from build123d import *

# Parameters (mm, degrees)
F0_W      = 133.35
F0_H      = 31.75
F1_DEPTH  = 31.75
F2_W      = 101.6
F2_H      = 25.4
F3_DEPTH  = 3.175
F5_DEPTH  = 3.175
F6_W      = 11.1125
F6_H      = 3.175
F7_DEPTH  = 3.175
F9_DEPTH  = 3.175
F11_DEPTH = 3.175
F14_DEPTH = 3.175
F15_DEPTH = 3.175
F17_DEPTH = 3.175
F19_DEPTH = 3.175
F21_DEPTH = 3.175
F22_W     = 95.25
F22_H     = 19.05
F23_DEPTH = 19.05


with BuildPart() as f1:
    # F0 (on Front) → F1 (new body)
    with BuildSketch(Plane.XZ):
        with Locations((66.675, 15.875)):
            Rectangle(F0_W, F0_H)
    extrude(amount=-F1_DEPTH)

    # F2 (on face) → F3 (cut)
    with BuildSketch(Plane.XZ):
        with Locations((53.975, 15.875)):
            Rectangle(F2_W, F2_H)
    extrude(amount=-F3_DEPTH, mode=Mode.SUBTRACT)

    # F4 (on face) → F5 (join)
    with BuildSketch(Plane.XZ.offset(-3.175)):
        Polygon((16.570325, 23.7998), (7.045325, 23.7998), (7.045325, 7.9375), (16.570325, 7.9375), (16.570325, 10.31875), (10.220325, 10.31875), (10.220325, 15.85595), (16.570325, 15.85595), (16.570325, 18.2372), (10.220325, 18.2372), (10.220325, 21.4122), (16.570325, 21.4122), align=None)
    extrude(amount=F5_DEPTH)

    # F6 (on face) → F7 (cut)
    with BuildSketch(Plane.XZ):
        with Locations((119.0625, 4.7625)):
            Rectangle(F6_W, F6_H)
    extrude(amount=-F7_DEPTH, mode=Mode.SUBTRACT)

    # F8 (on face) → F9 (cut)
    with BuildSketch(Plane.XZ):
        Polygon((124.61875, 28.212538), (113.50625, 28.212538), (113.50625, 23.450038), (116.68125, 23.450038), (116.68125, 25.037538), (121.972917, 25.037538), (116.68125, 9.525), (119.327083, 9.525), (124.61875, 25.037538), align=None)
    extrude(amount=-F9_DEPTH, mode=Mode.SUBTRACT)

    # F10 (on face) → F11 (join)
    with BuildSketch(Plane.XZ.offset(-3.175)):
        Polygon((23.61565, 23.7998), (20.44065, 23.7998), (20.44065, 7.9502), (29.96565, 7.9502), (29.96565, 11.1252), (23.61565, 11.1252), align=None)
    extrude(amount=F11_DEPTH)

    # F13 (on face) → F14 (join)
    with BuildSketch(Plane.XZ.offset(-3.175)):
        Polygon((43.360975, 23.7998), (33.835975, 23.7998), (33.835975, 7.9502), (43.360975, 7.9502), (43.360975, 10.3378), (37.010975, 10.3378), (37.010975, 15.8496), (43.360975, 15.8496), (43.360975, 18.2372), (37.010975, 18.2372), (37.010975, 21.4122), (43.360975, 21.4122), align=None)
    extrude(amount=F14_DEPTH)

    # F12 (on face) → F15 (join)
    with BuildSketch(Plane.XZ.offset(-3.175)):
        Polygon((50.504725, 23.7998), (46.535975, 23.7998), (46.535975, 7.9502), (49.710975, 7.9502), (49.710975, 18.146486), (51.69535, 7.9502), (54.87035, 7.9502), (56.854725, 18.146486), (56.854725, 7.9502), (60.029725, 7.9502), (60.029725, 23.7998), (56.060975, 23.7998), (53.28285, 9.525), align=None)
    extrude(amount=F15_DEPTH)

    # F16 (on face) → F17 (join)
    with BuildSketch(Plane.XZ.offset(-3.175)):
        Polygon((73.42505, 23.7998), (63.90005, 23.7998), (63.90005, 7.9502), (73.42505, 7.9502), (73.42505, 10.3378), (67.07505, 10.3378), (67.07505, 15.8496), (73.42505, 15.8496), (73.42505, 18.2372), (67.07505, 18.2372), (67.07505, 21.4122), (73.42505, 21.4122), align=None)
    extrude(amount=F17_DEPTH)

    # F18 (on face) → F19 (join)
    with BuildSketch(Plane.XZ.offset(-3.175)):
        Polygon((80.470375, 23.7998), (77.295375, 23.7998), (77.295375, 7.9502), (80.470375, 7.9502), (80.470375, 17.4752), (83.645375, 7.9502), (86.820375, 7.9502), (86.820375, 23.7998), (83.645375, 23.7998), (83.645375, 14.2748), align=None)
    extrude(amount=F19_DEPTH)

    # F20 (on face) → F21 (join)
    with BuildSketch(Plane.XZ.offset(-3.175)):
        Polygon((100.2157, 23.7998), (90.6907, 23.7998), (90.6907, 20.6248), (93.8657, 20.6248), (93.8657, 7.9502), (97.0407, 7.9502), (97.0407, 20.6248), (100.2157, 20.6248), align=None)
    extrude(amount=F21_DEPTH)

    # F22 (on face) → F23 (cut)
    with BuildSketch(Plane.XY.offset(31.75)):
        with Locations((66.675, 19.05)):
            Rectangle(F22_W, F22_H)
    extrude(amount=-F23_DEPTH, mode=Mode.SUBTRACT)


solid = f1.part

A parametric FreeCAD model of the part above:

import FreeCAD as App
import Part
import Sketcher
from FreeCAD import Vector
Q = App.Units.Quantity


def add_polygon(sketch, points):
    """Adds a closed chain of lines whose ends are joined by coincident constraints."""
    first, n = sketch.GeometryCount, len(points)
    for a, b in zip(points, points[1:] + points[:1]):
        sketch.addGeometry(Part.LineSegment(App.Vector(*a, 0), App.Vector(*b, 0)), False)
    for i in range(n):
        sketch.addConstraint(Sketcher.Constraint("Coincident", first + i, 2, first + (i + 1) % n, 1))

doc = App.newDocument("Part")
body = doc.addObject("PartDesign::Body", "Body")

sketch1 = body.newObject("Sketcher::SketchObject", "Sketch")
sketch1.AttachmentSupport = (doc.getObject("XZ_Plane"), [""])
sketch1.MapMode = "FlatFace"
add_polygon(sketch1, [(0, 31.75), (0, 0), (133.35, 0), (133.35, 31.75)])
sketch1.addConstraint([
    Sketcher.Constraint("Vertical", 0),
    Sketcher.Constraint("Horizontal", 1),
    Sketcher.Constraint("Vertical", 2),
    Sketcher.Constraint("Horizontal", 3),
    Sketcher.Constraint("Coincident", 0, 2, -1, 1),
    Sketcher.Constraint("DistanceX", 1, 1, 1, 2, Q("5.25 in")),
    Sketcher.Constraint("DistanceY", 0, 2, 0, 1, Q("1.25 in")),
])
pad1 = body.newObject("PartDesign::Pad", "Pad")
pad1.Profile = sketch1
pad1.Length = Q("1.25 in")
pad1.Reversed = True

sketch2 = body.newObject("Sketcher::SketchObject", "Sketch001")
sketch2.AttachmentSupport = (doc.getObject("XZ_Plane"), [""])
sketch2.MapMode = "FlatFace"
add_polygon(sketch2, [(3.175, 28.575), (3.175, 3.175), (104.775, 3.175), (104.775, 28.575)])
sketch2.addConstraint([
    Sketcher.Constraint("Vertical", 0),
    Sketcher.Constraint("Horizontal", 1),
    Sketcher.Constraint("Vertical", 2),
    Sketcher.Constraint("Horizontal", 3),
    Sketcher.Constraint("DistanceX", 1, 1, 1, 2, Q("4 in")),
    Sketcher.Constraint("DistanceY", 0, 2, 0, 1, Q("1 in")),
    Sketcher.Constraint("DistanceX", -1, 1, 0, 2, Q("0.125 in")),
    Sketcher.Constraint("DistanceY", -1, 1, 0, 2, Q("0.125 in")),
])
pocket1 = body.newObject("PartDesign::Pocket", "Pocket")
pocket1.Profile = sketch2
pocket1.Length = Q("0.125 in")

sketch3 = body.newObject("Sketcher::SketchObject", "Sketch002")
sketch3.AttachmentSupport = (doc.getObject("XZ_Plane"), [""])
sketch3.MapMode = "FlatFace"
sketch3.AttachmentOffset = App.Placement(Vector(0, 0, -0.125 * 25.4), App.Rotation())
add_polygon(sketch3, [(16.570325, 23.7998), (7.045325, 23.7998), (7.045325, 7.9375), (16.570325, 7.9375), (16.570325, 10.31875), (10.220325, 10.31875), (10.220325, 15.85595), (16.570325, 15.85595), (16.570325, 18.2372), (10.220325, 18.2372), (10.220325, 21.4122), (16.570325, 21.4122)])
sketch3.addConstraint([
    Sketcher.Constraint("Horizontal", 0),
    Sketcher.Constraint("Vertical", 1),
    Sketcher.Constraint("Horizontal", 2),
    Sketcher.Constraint("Vertical", 3),
    Sketcher.Constraint("Horizontal", 4),
    Sketcher.Constraint("Vertical", 5),
    Sketcher.Constraint("Horizontal", 6),
    Sketcher.Constraint("Vertical", 7),
    Sketcher.Constraint("Horizontal", 8),
    Sketcher.Constraint("Vertical", 9),
    Sketcher.Constraint("Horizontal", 10),
    Sketcher.Constraint("Vertical", 11),
    Sketcher.Constraint("Vertical", 3, 2, 6, 2),
    Sketcher.Constraint("Vertical", 5, 2, 8, 2),
    Sketcher.Constraint("Vertical", 7, 2, 10, 2),
    Sketcher.Constraint("Equal", 3, 7),
    Sketcher.Constraint("DistanceX", 4, 2, 4, 1, Q("0.25 in")),
    Sketcher.Constraint("DistanceX", 0, 2, 0, 1, Q("0.375 in")),
    Sketcher.Constraint("DistanceY", 3, 1, 3, 2, Q("0.09375 in")),
    Sketcher.Constraint("DistanceY", 5, 1, 5, 2, Q("0.218 in")),
    Sketcher.Constraint("DistanceY", 9, 1, 9, 2, Q("0.125 in")),
    Sketcher.Constraint("DistanceY", 11, 1, 11, 2, Q("0.094 in")),
    Sketcher.Constraint("DistanceY", -1, 1, 0, 2, Q("0.937 in")),
    Sketcher.Constraint("DistanceX", -1, 1, 0, 2, Q("7.045325 mm")),
])
pad2 = body.newObject("PartDesign::Pad", "Pad001")
pad2.Profile = sketch3
pad2.Length = Q("0.125 in")

sketch4 = body.newObject("Sketcher::SketchObject", "Sketch003")
sketch4.AttachmentSupport = (doc.getObject("XZ_Plane"), [""])
sketch4.MapMode = "FlatFace"
add_polygon(sketch4, [(113.50625, 6.35), (113.50625, 3.175), (124.61875, 3.175), (124.61875, 6.35)])
sketch4.addConstraint([
    Sketcher.Constraint("Vertical", 0),
    Sketcher.Constraint("Horizontal", 1),
    Sketcher.Constraint("Vertical", 2),
    Sketcher.Constraint("Horizontal", 3),
    Sketcher.Constraint("DistanceX", 1, 1, 1, 2, Q("0.4375 in")),
    Sketcher.Constraint("DistanceY", 0, 2, 0, 1, Q("0.125 in")),
    Sketcher.Constraint("DistanceY", -1, 1, 2, 2, Q("0.25 in")),
    Sketcher.Constraint("DistanceX", -1, 1, 0, 2, Q("4.46875 in")),
])
pocket2 = body.newObject("PartDesign::Pocket", "Pocket001")
pocket2.Profile = sketch4
pocket2.Length = Q("0.125 in")

sketch5 = body.newObject("Sketcher::SketchObject", "Sketch004")
sketch5.AttachmentSupport = (doc.getObject("XZ_Plane"), [""])
sketch5.MapMode = "FlatFace"
add_polygon(sketch5, [(124.61875, 28.212538), (113.50625, 28.212538), (113.50625, 23.450038), (116.68125, 23.450038), (116.68125, 25.037538), (121.972917, 25.037538), (116.68125, 9.525), (119.327083, 9.525), (124.61875, 25.037538)])
sketch5.addConstraint([
    Sketcher.Constraint("Horizontal", 0),
    Sketcher.Constraint("Vertical", 1),
    Sketcher.Constraint("Horizontal", 2),
    Sketcher.Constraint("Vertical", 3),
    Sketcher.Constraint("Horizontal", 4),
    Sketcher.Constraint("Horizontal", 6),
    Sketcher.Constraint("Vertical", 8),
    Sketcher.Constraint("Parallel", 5, 7),
    Sketcher.Constraint("Horizontal", 4, 2, 7, 2),
    Sketcher.Constraint("Vertical", 3, 2, 5, 2),
    Sketcher.Constraint("Equal", 2, 8),
    Sketcher.Constraint("DistanceX", 0, 2, 0, 1, Q("0.4375 in")),
    Sketcher.Constraint("DistanceX", 2, 1, 2, 2, Q("0.125 in")),
    Sketcher.Constraint("DistanceY", 1, 2, 1, 1, Q("0.1875 in")),
    Sketcher.Constraint("DistanceX", -1, 1, 0, 2, Q("4.46875 in")),
    Sketcher.Constraint("DistanceY", -1, 1, 5, 2, Q("0.375 in")),
    Sketcher.Constraint("Distance", 5, Q("16.390259 mm")),
    Sketcher.Constraint("DistanceX", 4, 1, 4, 2, Q("5.291667 mm")),
])
pocket3 = body.newObject("PartDesign::Pocket", "Pocket002")
pocket3.Profile = sketch5
pocket3.Length = Q("0.125 in")

sketch6 = body.newObject("Sketcher::SketchObject", "Sketch005")
sketch6.AttachmentSupport = (doc.getObject("XZ_Plane"), [""])
sketch6.MapMode = "FlatFace"
sketch6.AttachmentOffset = App.Placement(Vector(0, 0, -0.125 * 25.4), App.Rotation())
add_polygon(sketch6, [(23.61565, 23.7998), (20.44065, 23.7998), (20.44065, 7.9502), (29.96565, 7.9502), (29.96565, 11.1252), (23.61565, 11.1252)])
sketch6.addConstraint([
    Sketcher.Constraint("Horizontal", 0),
    Sketcher.Constraint("Vertical", 1),
    Sketcher.Constraint("Horizontal", 2),
    Sketcher.Constraint("Vertical", 3),
    Sketcher.Constraint("Horizontal", 4),
    Sketcher.Constraint("Vertical", 5),
    Sketcher.Constraint("Equal", 0, 3),
    Sketcher.Constraint("DistanceX", 4, 2, 4, 1, Q("0.25 in")),
    Sketcher.Constraint("DistanceX", 0, 2, 0, 1, Q("0.125 in")),
    Sketcher.Constraint("DistanceY", 1, 2, 1, 1, Q("0.624 in")),
    Sketcher.Constraint("DistanceY", -1, 1, 0, 2, Q("0.937 in")),
    Sketcher.Constraint("DistanceX", -1, 1, 0, 2, Q("20.44065 mm")),
])
pad3 = body.newObject("PartDesign::Pad", "Pad002")
pad3.Profile = sketch6
pad3.Length = Q("0.125 in")

sketch7 = body.newObject("Sketcher::SketchObject", "Sketch006")
sketch7.AttachmentSupport = (doc.getObject("XZ_Plane"), [""])
sketch7.MapMode = "FlatFace"
sketch7.AttachmentOffset = App.Placement(Vector(0, 0, -0.125 * 25.4), App.Rotation())
add_polygon(sketch7, [(43.360975, 23.7998), (33.835975, 23.7998), (33.835975, 7.9502), (43.360975, 7.9502), (43.360975, 10.3378), (37.010975, 10.3378), (37.010975, 15.8496), (43.360975, 15.8496), (43.360975, 18.2372), (37.010975, 18.2372), (37.010975, 21.4122), (43.360975, 21.4122)])
sketch7.addConstraint([
    Sketcher.Constraint("Horizontal", 0),
    Sketcher.Constraint("Vertical", 1),
    Sketcher.Constraint("Horizontal", 2),
    Sketcher.Constraint("Vertical", 3),
    Sketcher.Constraint("Horizontal", 4),
    Sketcher.Constraint("Vertical", 5),
    Sketcher.Constraint("Horizontal", 6),
    Sketcher.Constraint("Vertical", 7),
    Sketcher.Constraint("Horizontal", 8),
    Sketcher.Constraint("Vertical", 9),
    Sketcher.Constraint("Horizontal", 10),
    Sketcher.Constraint("Vertical", 11),
    Sketcher.Constraint("Vertical", 3, 2, 6, 2),
    Sketcher.Constraint("Vertical", 5, 2, 8, 2),
    Sketcher.Constraint("Vertical", 7, 2, 10, 2),
    Sketcher.Constraint("Equal", 3, 7),
    Sketcher.Constraint("Equal", 7, 11),
    Sketcher.Constraint("DistanceX", 4, 2, 4, 1, Q("0.25 in")),
    Sketcher.Constraint("DistanceX", 0, 2, 0, 1, Q("0.375 in")),
    Sketcher.Constraint("DistanceY", 1, 2, 1, 1, Q("0.624 in")),
    Sketcher.Constraint("DistanceY", 3, 1, 3, 2, Q("0.094 in")),
    Sketcher.Constraint("DistanceY", 5, 1, 5, 2, Q("0.217 in")),
    Sketcher.Constraint("DistanceY", -1, 1, 0, 2, Q("0.937 in")),
    Sketcher.Constraint("DistanceX", -1, 1, 0, 2, Q("33.835975 mm")),
])
pad4 = body.newObject("PartDesign::Pad", "Pad003")
pad4.Profile = sketch7
pad4.Length = Q("0.125 in")

sketch8 = body.newObject("Sketcher::SketchObject", "Sketch007")
sketch8.AttachmentSupport = (doc.getObject("XZ_Plane"), [""])
sketch8.MapMode = "FlatFace"
sketch8.AttachmentOffset = App.Placement(Vector(0, 0, -0.125 * 25.4), App.Rotation())
add_polygon(sketch8, [(50.504725, 23.7998), (46.535975, 23.7998), (46.535975, 7.9502), (49.710975, 7.9502), (49.710975, 18.146486), (51.69535, 7.9502), (54.87035, 7.9502), (56.854725, 18.146486), (56.854725, 7.9502), (60.029725, 7.9502), (60.029725, 23.7998), (56.060975, 23.7998), (53.28285, 9.525)])
sketch8.addConstraint([
    Sketcher.Constraint("Horizontal", 0),
    Sketcher.Constraint("Vertical", 1),
    Sketcher.Constraint("Horizontal", 2),
    Sketcher.Constraint("Vertical", 3),
    Sketcher.Constraint("Horizontal", 5),
    Sketcher.Constraint("Vertical", 7),
    Sketcher.Constraint("Horizontal", 8),
    Sketcher.Constraint("Vertical", 9),
    Sketcher.Constraint("Horizontal", 10),
    Sketcher.Constraint("Parallel", 6, 11),
    Sketcher.Constraint("Parallel", 4, 12),
    Sketcher.Constraint("Horizontal", 2, 2, 4, 2),
    Sketcher.Constraint("Horizontal", 3, 2, 6, 2),
    Sketcher.Constraint("Horizontal", 5, 2, 7, 2),
    Sketcher.Constraint("Horizontal", 0, 2, 9, 2),
    Sketcher.Constraint("Equal", 2, 5),
    Sketcher.Constraint("Equal", 5, 8),
    Sketcher.Constraint("Equal", 0, 10),
    Sketcher.Constraint("Equal", 4, 6),
    Sketcher.Constraint("DistanceX", 0, 2, 0, 1, Q("0.15625 in")),
    Sketcher.Constraint("DistanceX", 2, 1, 2, 2, Q("0.125 in")),
    Sketcher.Constraint("DistanceY", 1, 2, 1, 1, Q("0.624 in")),
    Sketcher.Constraint("DistanceX", 3, 2, 10, 2, Q("0.25 in")),
    Sketcher.Constraint("DistanceY", -1, 1, 0, 2, Q("0.937 in")),
    Sketcher.Constraint("DistanceY", -1, 1, 11, 2, Q("0.375 in")),
    Sketcher.Constraint("DistanceX", -1, 1, 4, 2, Q("51.69535 mm")),
])
pad5 = body.newObject("PartDesign::Pad", "Pad004")
pad5.Profile = sketch8
pad5.Length = Q("0.125 in")

sketch9 = body.newObject("Sketcher::SketchObject", "Sketch008")
sketch9.AttachmentSupport = (doc.getObject("XZ_Plane"), [""])
sketch9.MapMode = "FlatFace"
sketch9.AttachmentOffset = App.Placement(Vector(0, 0, -0.125 * 25.4), App.Rotation())
add_polygon(sketch9, [(73.42505, 23.7998), (63.90005, 23.7998), (63.90005, 7.9502), (73.42505, 7.9502), (73.42505, 10.3378), (67.07505, 10.3378), (67.07505, 15.8496), (73.42505, 15.8496), (73.42505, 18.2372), (67.07505, 18.2372), (67.07505, 21.4122), (73.42505, 21.4122)])
sketch9.addConstraint([
    Sketcher.Constraint("Horizontal", 0),
    Sketcher.Constraint("Vertical", 1),
    Sketcher.Constraint("Horizontal", 2),
    Sketcher.Constraint("Vertical", 3),
    Sketcher.Constraint("Horizontal", 4),
    Sketcher.Constraint("Vertical", 5),
    Sketcher.Constraint("Horizontal", 6),
    Sketcher.Constraint("Vertical", 7),
    Sketcher.Constraint("Horizontal", 8),
    Sketcher.Constraint("Vertical", 9),
    Sketcher.Constraint("Horizontal", 10),
    Sketcher.Constraint("Vertical", 11),
    Sketcher.Constraint("Vertical", 3, 2, 6, 2),
    Sketcher.Constraint("Vertical", 5, 2, 8, 2),
    Sketcher.Constraint("Vertical", 7, 2, 10, 2),
    Sketcher.Constraint("Equal", 3, 7),
    Sketcher.Constraint("Equal", 7, 11),
    Sketcher.Constraint("DistanceX", 4, 2, 4, 1, Q("0.25 in")),
    Sketcher.Constraint("DistanceX", 0, 2, 0, 1, Q("0.375 in")),
    Sketcher.Constraint("DistanceY", 1, 2, 1, 1, Q("0.624 in")),
    Sketcher.Constraint("DistanceY", 3, 1, 3, 2, Q("0.094 in")),
    Sketcher.Constraint("DistanceY", 5, 1, 5, 2, Q("0.217 in")),
    Sketcher.Constraint("DistanceY", -1, 1, 0, 2, Q("0.937 in")),
    Sketcher.Constraint("DistanceX", -1, 1, 0, 2, Q("63.90005 mm")),
])
pad6 = body.newObject("PartDesign::Pad", "Pad005")
pad6.Profile = sketch9
pad6.Length = Q("0.125 in")

sketch10 = body.newObject("Sketcher::SketchObject", "Sketch009")
sketch10.AttachmentSupport = (doc.getObject("XZ_Plane"), [""])
sketch10.MapMode = "FlatFace"
sketch10.AttachmentOffset = App.Placement(Vector(0, 0, -0.125 * 25.4), App.Rotation())
add_polygon(sketch10, [(80.470375, 23.7998), (77.295375, 23.7998), (77.295375, 7.9502), (80.470375, 7.9502), (80.470375, 17.4752), (83.645375, 7.9502), (86.820375, 7.9502), (86.820375, 23.7998), (83.645375, 23.7998), (83.645375, 14.2748)])
sketch10.addConstraint([
    Sketcher.Constraint("Horizontal", 0),
    Sketcher.Constraint("Vertical", 1),
    Sketcher.Constraint("Horizontal", 2),
    Sketcher.Constraint("Vertical", 3),
    Sketcher.Constraint("Horizontal", 5),
    Sketcher.Constraint("Vertical", 6),
    Sketcher.Constraint("Horizontal", 7),
    Sketcher.Constraint("Vertical", 8),
    Sketcher.Constraint("Parallel", 4, 9),
    Sketcher.Constraint("Horizontal", 2, 2, 4, 2),
    Sketcher.Constraint("Horizontal", 0, 2, 6, 2),
    Sketcher.Constraint("Vertical", 4, 2, 7, 2),
    Sketcher.Constraint("Vertical", 3, 2, 9, 2),
    Sketcher.Constraint("Equal", 2, 5),
    Sketcher.Constraint("DistanceX", 0, 2, 0, 1, Q("0.125 in")),
    Sketcher.Constraint("DistanceY", 1, 2, 1, 1, Q("0.624 in")),
    Sketcher.Constraint("DistanceY", 3, 1, 3, 2, Q("0.375 in")),
    Sketcher.Constraint("DistanceX", 1, 2, 4, 2, Q("0.25 in")),
    Sketcher.Constraint("DistanceY", -1, 1, 0, 2, Q("0.937 in")),
    Sketcher.Constraint("DistanceX", -1, 1, 0, 2, Q("77.295375 mm")),
])
pad7 = body.newObject("PartDesign::Pad", "Pad006")
pad7.Profile = sketch10
pad7.Length = Q("0.125 in")

sketch11 = body.newObject("Sketcher::SketchObject", "Sketch010")
sketch11.AttachmentSupport = (doc.getObject("XZ_Plane"), [""])
sketch11.MapMode = "FlatFace"
sketch11.AttachmentOffset = App.Placement(Vector(0, 0, -0.125 * 25.4), App.Rotation())
add_polygon(sketch11, [(100.2157, 23.7998), (90.6907, 23.7998), (90.6907, 20.6248), (93.8657, 20.6248), (93.8657, 7.9502), (97.0407, 7.9502), (97.0407, 20.6248), (100.2157, 20.6248)])
sketch11.addConstraint([
    Sketcher.Constraint("Horizontal", 0),
    Sketcher.Constraint("Vertical", 1),
    Sketcher.Constraint("Horizontal", 2),
    Sketcher.Constraint("Vertical", 3),
    Sketcher.Constraint("Horizontal", 4),
    Sketcher.Constraint("Vertical", 5),
    Sketcher.Constraint("Horizontal", 6),
    Sketcher.Constraint("Vertical", 7),
    Sketcher.Constraint("Horizontal", 2, 2, 5, 2),
    Sketcher.Constraint("Equal", 2, 4),
    Sketcher.Constraint("Equal", 4, 6),
    Sketcher.Constraint("Equal", 6, 1),
    Sketcher.Constraint("DistanceX", 0, 2, 0, 1, Q("0.375 in")),
    Sketcher.Constraint("DistanceY", 3, 2, 3, 1, Q("0.499 in")),
    Sketcher.Constraint("DistanceY", -1, 1, 0, 2, Q("0.937 in")),
    Sketcher.Constraint("DistanceX", -1, 1, 0, 2, Q("3.5705 in")),
])
pad8 = body.newObject("PartDesign::Pad", "Pad007")
pad8.Profile = sketch11
pad8.Length = Q("0.125 in")

sketch12 = body.newObject("Sketcher::SketchObject", "Sketch011")
sketch12.AttachmentSupport = (doc.getObject("XY_Plane"), [""])
sketch12.MapMode = "FlatFace"
sketch12.AttachmentOffset = App.Placement(Vector(0, 0, 1.25 * 25.4), App.Rotation())
add_polygon(sketch12, [(19.05, 28.575), (19.05, 9.525), (114.3, 9.525), (114.3, 28.575)])
sketch12.addConstraint([
    Sketcher.Constraint("Vertical", 0),
    Sketcher.Constraint("Horizontal", 1),
    Sketcher.Constraint("Vertical", 2),
    Sketcher.Constraint("Horizontal", 3),
    Sketcher.Constraint("DistanceX", 1, 1, 1, 2, Q("3.75 in")),
    Sketcher.Constraint("DistanceY", 0, 2, 0, 1, Q("0.75 in")),
    Sketcher.Constraint("DistanceX", -1, 1, 1, 2, Q("4.5 in")),
    Sketcher.Constraint("DistanceY", -1, 1, 0, 2, Q("0.375 in")),
])
pocket4 = body.newObject("PartDesign::Pocket", "Pocket003")
pocket4.Profile = sketch12
pocket4.Length = Q("0.75 in")

doc.recompute()
